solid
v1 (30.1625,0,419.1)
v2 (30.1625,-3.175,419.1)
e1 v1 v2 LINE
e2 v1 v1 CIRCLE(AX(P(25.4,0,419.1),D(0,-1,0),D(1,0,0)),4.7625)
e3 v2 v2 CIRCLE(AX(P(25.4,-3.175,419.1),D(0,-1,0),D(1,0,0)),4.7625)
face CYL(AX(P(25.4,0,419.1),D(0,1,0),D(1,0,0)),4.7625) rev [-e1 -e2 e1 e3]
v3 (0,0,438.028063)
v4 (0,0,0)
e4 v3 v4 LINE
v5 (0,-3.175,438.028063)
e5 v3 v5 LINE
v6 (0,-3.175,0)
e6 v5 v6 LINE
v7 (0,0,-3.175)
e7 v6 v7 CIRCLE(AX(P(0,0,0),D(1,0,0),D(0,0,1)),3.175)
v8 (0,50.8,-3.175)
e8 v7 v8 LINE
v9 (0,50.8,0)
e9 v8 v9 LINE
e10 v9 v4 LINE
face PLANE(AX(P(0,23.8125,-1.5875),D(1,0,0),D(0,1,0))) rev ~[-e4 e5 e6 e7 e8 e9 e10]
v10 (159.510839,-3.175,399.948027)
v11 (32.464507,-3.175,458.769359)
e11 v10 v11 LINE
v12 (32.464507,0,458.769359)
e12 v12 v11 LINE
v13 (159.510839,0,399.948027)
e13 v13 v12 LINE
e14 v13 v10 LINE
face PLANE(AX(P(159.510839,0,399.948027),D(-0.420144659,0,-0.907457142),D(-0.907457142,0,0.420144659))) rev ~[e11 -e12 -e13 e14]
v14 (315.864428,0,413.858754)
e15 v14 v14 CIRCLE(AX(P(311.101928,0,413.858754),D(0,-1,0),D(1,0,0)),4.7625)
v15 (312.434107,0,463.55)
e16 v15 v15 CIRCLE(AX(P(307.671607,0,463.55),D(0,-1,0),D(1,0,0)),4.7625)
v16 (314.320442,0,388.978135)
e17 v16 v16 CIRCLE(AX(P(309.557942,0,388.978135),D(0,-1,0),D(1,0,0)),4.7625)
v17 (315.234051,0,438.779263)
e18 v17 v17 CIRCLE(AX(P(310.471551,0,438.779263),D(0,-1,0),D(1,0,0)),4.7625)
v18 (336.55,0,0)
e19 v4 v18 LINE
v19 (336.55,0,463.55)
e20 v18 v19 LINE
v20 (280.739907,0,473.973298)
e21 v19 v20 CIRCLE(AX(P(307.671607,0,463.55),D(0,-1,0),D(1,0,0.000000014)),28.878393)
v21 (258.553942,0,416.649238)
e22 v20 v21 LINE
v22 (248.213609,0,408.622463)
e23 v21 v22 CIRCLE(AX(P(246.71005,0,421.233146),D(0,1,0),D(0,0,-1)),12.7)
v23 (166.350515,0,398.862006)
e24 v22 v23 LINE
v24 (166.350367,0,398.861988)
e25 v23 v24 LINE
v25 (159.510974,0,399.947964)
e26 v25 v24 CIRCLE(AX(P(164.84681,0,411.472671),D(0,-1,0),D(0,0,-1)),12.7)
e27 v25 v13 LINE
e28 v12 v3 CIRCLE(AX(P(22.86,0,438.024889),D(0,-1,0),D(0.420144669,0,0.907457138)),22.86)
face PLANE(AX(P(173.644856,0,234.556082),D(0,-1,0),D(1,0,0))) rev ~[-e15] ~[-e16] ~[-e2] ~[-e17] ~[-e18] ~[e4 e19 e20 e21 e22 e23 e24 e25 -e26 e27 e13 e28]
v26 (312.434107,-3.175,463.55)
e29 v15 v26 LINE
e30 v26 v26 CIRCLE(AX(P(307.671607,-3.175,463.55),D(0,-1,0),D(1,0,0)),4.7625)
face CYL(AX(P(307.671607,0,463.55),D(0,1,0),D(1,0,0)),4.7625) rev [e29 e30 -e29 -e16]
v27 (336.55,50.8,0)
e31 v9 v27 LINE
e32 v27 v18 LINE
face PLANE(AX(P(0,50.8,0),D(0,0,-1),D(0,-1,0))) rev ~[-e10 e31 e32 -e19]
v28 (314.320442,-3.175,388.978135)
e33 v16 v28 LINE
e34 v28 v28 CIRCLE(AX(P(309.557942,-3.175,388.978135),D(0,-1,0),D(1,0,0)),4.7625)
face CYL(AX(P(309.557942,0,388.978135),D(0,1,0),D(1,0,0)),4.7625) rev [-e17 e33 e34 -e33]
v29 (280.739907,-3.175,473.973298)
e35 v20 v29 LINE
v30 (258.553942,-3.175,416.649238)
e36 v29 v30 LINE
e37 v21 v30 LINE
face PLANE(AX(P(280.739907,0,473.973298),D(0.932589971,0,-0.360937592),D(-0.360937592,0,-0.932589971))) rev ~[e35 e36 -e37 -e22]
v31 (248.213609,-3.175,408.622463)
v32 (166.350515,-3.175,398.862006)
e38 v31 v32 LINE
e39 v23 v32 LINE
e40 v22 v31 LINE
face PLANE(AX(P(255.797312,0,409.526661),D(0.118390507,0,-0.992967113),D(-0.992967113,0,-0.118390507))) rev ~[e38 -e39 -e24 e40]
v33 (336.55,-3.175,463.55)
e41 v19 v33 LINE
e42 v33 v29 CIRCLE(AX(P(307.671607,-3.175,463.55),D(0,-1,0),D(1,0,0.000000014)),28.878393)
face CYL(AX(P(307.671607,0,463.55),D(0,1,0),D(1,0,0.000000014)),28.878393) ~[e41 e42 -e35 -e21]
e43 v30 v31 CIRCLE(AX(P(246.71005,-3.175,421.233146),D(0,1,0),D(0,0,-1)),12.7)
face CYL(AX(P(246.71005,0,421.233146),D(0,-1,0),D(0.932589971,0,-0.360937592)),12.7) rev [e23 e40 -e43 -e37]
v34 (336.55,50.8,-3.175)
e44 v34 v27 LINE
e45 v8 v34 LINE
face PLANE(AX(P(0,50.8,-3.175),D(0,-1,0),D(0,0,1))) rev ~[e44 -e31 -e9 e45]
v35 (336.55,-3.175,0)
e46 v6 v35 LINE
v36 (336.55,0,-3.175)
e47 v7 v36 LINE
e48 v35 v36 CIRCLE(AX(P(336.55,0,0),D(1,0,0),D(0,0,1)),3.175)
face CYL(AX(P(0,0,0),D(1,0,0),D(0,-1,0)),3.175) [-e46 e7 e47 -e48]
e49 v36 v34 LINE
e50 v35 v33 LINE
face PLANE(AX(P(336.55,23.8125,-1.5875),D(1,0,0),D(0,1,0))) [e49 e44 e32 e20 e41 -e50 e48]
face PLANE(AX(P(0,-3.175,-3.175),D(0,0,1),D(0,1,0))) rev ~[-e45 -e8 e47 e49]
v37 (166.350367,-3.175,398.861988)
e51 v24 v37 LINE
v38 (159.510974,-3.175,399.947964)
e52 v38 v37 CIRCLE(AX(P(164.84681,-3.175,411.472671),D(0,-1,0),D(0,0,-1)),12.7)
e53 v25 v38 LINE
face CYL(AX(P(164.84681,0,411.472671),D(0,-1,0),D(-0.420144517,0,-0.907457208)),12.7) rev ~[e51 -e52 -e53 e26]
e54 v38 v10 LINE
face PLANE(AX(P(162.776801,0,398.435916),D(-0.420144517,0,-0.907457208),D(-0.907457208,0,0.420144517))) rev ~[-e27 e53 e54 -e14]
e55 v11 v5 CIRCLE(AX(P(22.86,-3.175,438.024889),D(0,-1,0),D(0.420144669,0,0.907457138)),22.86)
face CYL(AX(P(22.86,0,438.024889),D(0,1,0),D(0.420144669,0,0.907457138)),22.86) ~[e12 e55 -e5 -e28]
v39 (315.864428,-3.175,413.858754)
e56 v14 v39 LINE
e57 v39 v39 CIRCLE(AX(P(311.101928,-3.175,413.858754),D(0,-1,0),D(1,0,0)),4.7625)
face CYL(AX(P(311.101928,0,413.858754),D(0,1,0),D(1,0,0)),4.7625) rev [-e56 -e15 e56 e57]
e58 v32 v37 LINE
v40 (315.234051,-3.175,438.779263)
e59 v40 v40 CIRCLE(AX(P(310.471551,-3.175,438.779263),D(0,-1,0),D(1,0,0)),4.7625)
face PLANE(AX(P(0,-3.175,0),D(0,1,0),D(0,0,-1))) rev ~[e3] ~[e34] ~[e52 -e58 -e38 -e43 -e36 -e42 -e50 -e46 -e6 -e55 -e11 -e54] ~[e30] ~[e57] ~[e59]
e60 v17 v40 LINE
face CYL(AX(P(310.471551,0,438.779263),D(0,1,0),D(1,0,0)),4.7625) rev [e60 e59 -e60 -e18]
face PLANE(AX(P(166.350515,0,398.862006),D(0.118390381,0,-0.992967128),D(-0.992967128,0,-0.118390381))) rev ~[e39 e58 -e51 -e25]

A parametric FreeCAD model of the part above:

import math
import FreeCAD as App
import Part
import Sketcher
Q = App.Units.Quantity


def edges_at(feature, points):
    """Names of the edges that pass closest to the given points."""
    edges = feature.Shape.Edges
    near = lambda p: min(range(len(edges)), key=lambda i: edges[i].distToShape(Part.Vertex(*p))[0])
    return sorted({f"Edge{near(p) + 1}" for p in points})

doc = App.newDocument("Part")
body = doc.addObject("PartDesign::Body", "Body")

# Sketch on XZ plane
sketch1 = doc.addObject("Sketcher::SketchObject", "Sketch")
body.addObject(sketch1)
sketch1.AttachmentSupport = (doc.XZ_Plane, [""])
sketch1.MapMode = "FlatFace"
sketch1.addGeometry(Part.LineSegment(App.Vector(0, 438, 0), App.Vector(0, 0, 0)), False)
sketch1.addGeometry(Part.LineSegment(App.Vector(0, 0, 0), App.Vector(336.6, 0, 0)), False)
sketch1.addGeometry(Part.LineSegment(App.Vector(336.6, 0, 0), App.Vector(336.6, 463.6, 0)), False)
sketch1.addGeometry(Part.ArcOfCircle(Part.Circle(App.Vector(307.7, 463.5, 0), App.Vector(0, 0, 1), 28.9), math.radians(0), math.radians(159)), False)
sketch1.addGeometry(Part.LineSegment(App.Vector(280.7, 474, 0), App.Vector(255.8, 409.5, 0)), False)
sketch1.addGeometry(Part.LineSegment(App.Vector(255.8, 409.5, 0), App.Vector(166.4, 398.9, 0)), False)
sketch1.addGeometry(Part.LineSegment(App.Vector(166.4, 398.9, 0), App.Vector(162.8, 398.4, 0)), False)
sketch1.addGeometry(Part.LineSegment(App.Vector(162.8, 398.4, 0), App.Vector(159.5, 399.9, 0)), False)
sketch1.addGeometry(Part.LineSegment(App.Vector(159.5, 399.9, 0), App.Vector(32.5, 458.8, 0)), False)
sketch1.addGeometry(Part.ArcOfCircle(Part.Circle(App.Vector(22.9, 438, 0), App.Vector(0, 0, 1), 22.9), math.radians(65), math.radians(180)), False)
sketch1.addGeometry(Part.Circle(App.Vector(25.4, 419.1, 0), App.Vector(0, 0, 1), 4.8), False)
sketch1.addGeometry(Part.Circle(App.Vector(309.6, 389, 0), App.Vector(0, 0, 1), 4.8), False)
sketch1.addGeometry(Part.Circle(App.Vector(311.1, 413.9, 0), App.Vector(0, 0, 1), 4.8), False)
sketch1.addGeometry(Part.Circle(App.Vector(310.5, 438.8, 0), App.Vector(0, 0, 1), 4.8), False)
sketch1.addGeometry(Part.Circle(App.Vector(307.7, 463.6, 0), App.Vector(0, 0, 1), 4.8), False)
sketch1.addConstraint(Sketcher.Constraint("Coincident", 0, 2, 1, 1))
sketch1.addConstraint(Sketcher.Constraint("Coincident", 1, 2, 2, 1))
sketch1.addConstraint(Sketcher.Constraint("Tangent", 2, 2, 3, 1))
sketch1.addConstraint(Sketcher.Constraint("Tangent", 3, 2, 4, 1))
sketch1.addConstraint(Sketcher.Constraint("Coincident", 4, 2, 5, 1))
sketch1.addConstraint(Sketcher.Constraint("Coincident", 5, 2, 6, 1))
sketch1.addConstraint(Sketcher.Constraint("Coincident", 6, 2, 7, 1))
sketch1.addConstraint(Sketcher.Constraint("Coincident", 7, 2, 8, 1))
sketch1.addConstraint(Sketcher.Constraint("Tangent", 8, 2, 9, 1))
sketch1.addConstraint(Sketcher.Constraint("Coincident", 9, 2, 0, 1))
sketch1.addConstraint(Sketcher.Constraint("Vertical", 0))
sketch1.addConstraint(Sketcher.Constraint("Horizontal", 1))
sketch1.addConstraint(Sketcher.Constraint("Vertical", 2))
sketch1.addConstraint(Sketcher.Constraint("Coincident", 0, 2, -1, 1))
sketch1.addConstraint(Sketcher.Constraint("Coincident", 14, 3, 3, 3))
sketch1.addConstraint(Sketcher.Constraint("Equal", 10, 11))
sketch1.addConstraint(Sketcher.Constraint("Equal", 11, 12))
sketch1.addConstraint(Sketcher.Constraint("Equal", 12, 13))
sketch1.addConstraint(Sketcher.Constraint("Equal", 13, 14))
sketch1.addConstraint(Sketcher.Constraint("Parallel", 5, 6))
sketch1.addConstraint(Sketcher.Constraint("Parallel", 7, 8))
sketch1.addConstraint(Sketcher.Constraint("Equal", 6, 7))
sketch1.addConstraint(Sketcher.Constraint("Radius", 9, Q("0.9 in")))
sketch1.addConstraint(Sketcher.Constraint("Diameter", 10, Q("0.375 in")))
sketch1.addConstraint(Sketcher.Constraint("DistanceX", -1, 1, 10, 3, Q("1 in")))
sketch1.addConstraint(Sketcher.Constraint("DistanceX", 1, 1, 1, 2, Q("13.25 in")))
sketch1.addConstraint(Sketcher.Constraint("DistanceY", 2, 1, 2, 2, Q("18.25 in")))
sketch1.addConstraint(Sketcher.Constraint("DistanceY", -1, 1, 10, 3, Q("16.5 in")))
sketch1.addConstraint(Sketcher.Constraint("DistanceY", -1, 1, 11, 3, Q("15.3140998 in")))
sketch1.addConstraint(Sketcher.Constraint("Radius", 3, Q("28.878393 mm")))
sketch1.addConstraint(Sketcher.Constraint("DistanceX", -1, 1, 6, 2, Q("162.776801 mm")))
sketch1.addConstraint(Sketcher.Constraint("DistanceX", 3, 2, 3, 3, Q("26.9317 mm")))
sketch1.addConstraint(Sketcher.Constraint("Distance", 5, Q("90.080322 mm")))
sketch1.addConstraint(Sketcher.Constraint("Distance", 8, Q("140.00257 mm")))
sketch1.addConstraint(Sketcher.Constraint("DistanceY", 0, 2, 0, 1, Q("438.028063 mm")))
sketch1.addConstraint(Sketcher.Constraint("DistanceY", -1, 1, 9, 3, Q("438.024889 mm")))
sketch1.addConstraint(Sketcher.Constraint("DistanceX", -1, 1, 12, 3, Q("311.101928 mm")))
sketch1.addConstraint(Sketcher.Constraint("DistanceX", -1, 1, 13, 3, Q("310.471551 mm")))
sketch1.addConstraint(Sketcher.Constraint("DistanceX", -1, 1, 4, 2, Q("255.797312 mm")))
sketch1.addConstraint(Sketcher.Constraint("DistanceY", 11, 3, 12, 3, Q("24.880619 mm")))
sketch1.addConstraint(Sketcher.Constraint("DistanceY", 12, 3, 13, 3, Q("24.920509 mm")))
sketch1.addConstraint(Sketcher.Constraint("DistanceX", 11, 3, 13, 3, Q("0.913609 mm")))
pad1 = doc.addObject("PartDesign::Pad", "Pad")
body.addObject(pad1)
pad1.Profile = sketch1
pad1.Length = Q("0.125 in")
doc.recompute()

fillet = doc.addObject("PartDesign::Fillet", "Fillet")
body.addObject(fillet)
fillet.Base = (pad1, edges_at(pad1, [(162.777, -1.587, 398.436), (255.797, -1.587, 409.527)]))
fillet.Radius = Q("0.5 in")

# Sketch on YZ plane
sketch2 = doc.addObject("Sketcher::SketchObject", "Sketch001")
body.addObject(sketch2)
sketch2.AttachmentSupport = (doc.YZ_Plane, [""])
sketch2.MapMode = "FlatFace"
sketch2.addGeometry(Part.LineSegment(App.Vector(-3.2, 0, 0), App.Vector(-3.2, -3.2, 0)), False)
sketch2.addGeometry(Part.LineSegment(App.Vector(-3.2, -3.2, 0), App.Vector(50.8, -3.2, 0)), False)
sketch2.addGeometry(Part.LineSegment(App.Vector(50.8, -3.2, 0), App.Vector(50.8, 0, 0)), False)
sketch2.addGeometry(Part.LineSegment(App.Vector(50.8, 0, 0), App.Vector(-3.2, 0, 0)), False)
sketch2.addConstraint(Sketcher.Constraint("Coincident", 0, 2, 1, 1))
sketch2.addConstraint(Sketcher.Constraint("Coincident", 1, 2, 2, 1))
sketch2.addConstraint(Sketcher.Constraint("Coincident", 2, 2, 3, 1))
sketch2.addConstraint(Sketcher.Constraint("Coincident", 3, 2, 0, 1))
sketch2.addConstraint(Sketcher.Constraint("Vertical", 0))
sketch2.addConstraint(Sketcher.Constraint("Horizontal", 1))
sketch2.addConstraint(Sketcher.Constraint("Vertical", 2))
sketch2.addConstraint(Sketcher.Constraint("Horizontal", 3))
sketch2.addConstraint(Sketcher.Constraint("PointOnObject", 2, 2, -1))
sketch2.addConstraint(Sketcher.Constraint("DistanceX", -1, 1, 1, 2, Q("2 in")))
sketch2.addConstraint(Sketcher.Constraint("DistanceX", 1, 1, 1, 2, Q("2.125 in")))
sketch2.addConstraint(Sketcher.Constraint("DistanceY", 0, 2, 0, 1, Q("0.125 in")))
pad2 = doc.addObject("PartDesign::Pad", "Pad001")
body.addObject(pad2)
pad2.Profile = sketch2
pad2.Length = Q("13.25 in")
doc.recompute()

fillet2 = doc.addObject("PartDesign::Fillet", "Fillet001")
body.addObject(fillet2)
fillet2.Base = (pad2, edges_at(pad2, [(168.275, -3.175, -3.175)]))
fillet2.Radius = Q("0.125 in")

doc.recompute()
